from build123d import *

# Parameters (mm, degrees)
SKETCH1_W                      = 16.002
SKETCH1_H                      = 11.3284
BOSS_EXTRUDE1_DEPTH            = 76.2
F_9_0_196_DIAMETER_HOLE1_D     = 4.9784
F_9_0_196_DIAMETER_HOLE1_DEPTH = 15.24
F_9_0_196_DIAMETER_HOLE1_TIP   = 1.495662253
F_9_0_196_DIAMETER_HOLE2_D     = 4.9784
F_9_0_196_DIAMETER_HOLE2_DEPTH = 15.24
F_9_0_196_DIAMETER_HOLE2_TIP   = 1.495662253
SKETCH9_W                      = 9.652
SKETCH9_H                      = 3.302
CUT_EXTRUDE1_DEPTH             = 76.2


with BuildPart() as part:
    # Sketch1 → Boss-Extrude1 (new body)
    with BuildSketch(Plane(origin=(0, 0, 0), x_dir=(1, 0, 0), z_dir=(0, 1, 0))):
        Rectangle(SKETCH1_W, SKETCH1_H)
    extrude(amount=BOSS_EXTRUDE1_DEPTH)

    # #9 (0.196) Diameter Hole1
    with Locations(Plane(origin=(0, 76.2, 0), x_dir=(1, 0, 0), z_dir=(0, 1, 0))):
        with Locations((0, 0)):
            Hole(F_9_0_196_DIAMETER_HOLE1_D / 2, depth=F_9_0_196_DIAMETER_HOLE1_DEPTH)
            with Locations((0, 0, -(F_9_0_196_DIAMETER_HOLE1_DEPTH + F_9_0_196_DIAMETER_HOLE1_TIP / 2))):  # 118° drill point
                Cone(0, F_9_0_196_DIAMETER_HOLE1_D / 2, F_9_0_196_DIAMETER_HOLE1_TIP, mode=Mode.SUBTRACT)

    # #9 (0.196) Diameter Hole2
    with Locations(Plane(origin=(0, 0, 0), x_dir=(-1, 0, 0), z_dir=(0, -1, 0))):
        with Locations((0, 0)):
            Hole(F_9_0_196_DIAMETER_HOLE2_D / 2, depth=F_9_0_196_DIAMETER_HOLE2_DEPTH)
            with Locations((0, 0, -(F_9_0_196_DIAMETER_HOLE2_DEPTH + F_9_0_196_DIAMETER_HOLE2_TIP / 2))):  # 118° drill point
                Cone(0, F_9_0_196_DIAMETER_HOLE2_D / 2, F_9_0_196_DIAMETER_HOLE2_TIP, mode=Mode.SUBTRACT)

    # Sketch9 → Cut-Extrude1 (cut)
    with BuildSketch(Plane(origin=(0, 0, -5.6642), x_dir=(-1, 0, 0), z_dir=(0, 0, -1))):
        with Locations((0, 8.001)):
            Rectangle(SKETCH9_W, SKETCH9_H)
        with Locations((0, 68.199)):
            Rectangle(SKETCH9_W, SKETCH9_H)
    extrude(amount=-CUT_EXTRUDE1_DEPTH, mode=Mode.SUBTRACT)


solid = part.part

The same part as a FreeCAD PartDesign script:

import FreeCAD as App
import Part
import Sketcher

V = App.Vector
Q = App.Units.Quantity

doc = App.newDocument("Part")
body = doc.addObject("PartDesign::Body", "Body")

sketch1 = body.newObject("Sketcher::SketchObject", "Sketch")
sketch1.AttachmentSupport = (doc.getObject("XZ_Plane"), [""])
sketch1.MapMode = "FlatFace"
sketch1.addGeometry([
    Part.LineSegment(V(-8.001, -5.6642, 0), V(-8.001, 5.6642, 0)),
    Part.LineSegment(V(-8.001, 5.6642, 0), V(8.001, 5.6642, 0)),
    Part.LineSegment(V(8.001, 5.6642, 0), V(8.001, -5.6642, 0)),
    Part.LineSegment(V(8.001, -5.6642, 0), V(-8.001, -5.6642, 0)),
], False)
sketch1.addConstraint([
    Sketcher.Constraint("Coincident", 0, 2, 1, 1),
    Sketcher.Constraint("Coincident", 1, 2, 2, 1),
    Sketcher.Constraint("Coincident", 2, 2, 3, 1),
    Sketcher.Constraint("Coincident", 3, 2, 0, 1),
    Sketcher.Constraint("Vertical", 0),
    Sketcher.Constraint("Horizontal", 1),
    Sketcher.Constraint("Vertical", 2),
    Sketcher.Constraint("Horizontal", 3),
    Sketcher.Constraint("Symmetric", 0, 2, 2, 2, -1, 1),
    Sketcher.Constraint("DistanceX", 1, 1, 1, 2, Q("0.63 in")),
    Sketcher.Constraint("DistanceY", 0, 1, 0, 2, Q("0.446 in")),
])
pad1 = body.newObject("PartDesign::Pad", "Pad")
pad1.Profile = sketch1
pad1.Length = Q("3 in")
pad1.Reversed = True

sketch2 = body.newObject("Sketcher::SketchObject", "Sketch001")
sketch2.AttachmentSupport = (doc.getObject("XZ_Plane"), [""])
sketch2.MapMode = "FlatFace"
sketch2.AttachmentOffset = App.Placement(V(0, 0, -3 * 25.4), App.Rotation())
sketch2.addGeometry(Part.Circle(V(0, 0, 0), V(0, 0, 1), 2.4892), False)
sketch2.addConstraint([
    Sketcher.Constraint("Coincident", 0, 3, -1, 1),
    Sketcher.Constraint("Diameter", 0, Q("0.196 in")),
])
doc.recompute()
hole = body.newObject("PartDesign::Hole", "Hole")
hole.Profile = sketch2
hole.ThreadType = "None"
hole.Diameter = Q("0.196 in")
hole.DepthType = "Dimension"
hole.Depth = Q("0.6 in")
hole.DrillPoint = "Angled"
hole.DrillPointAngle = 118
hole.Reversed = True

sketch3 = body.newObject("Sketcher::SketchObject", "Sketch002")
sketch3.AttachmentSupport = (doc.getObject("XZ_Plane"), [""])
sketch3.MapMode = "FlatFace"
sketch3.addGeometry(Part.Circle(V(0, 0, 0), V(0, 0, 1), 2.4892), False)
sketch3.addConstraint([
    Sketcher.Constraint("Coincident", 0, 3, -1, 1),
    Sketcher.Constraint("Diameter", 0, Q("0.196 in")),
])
doc.recompute()
hole2 = body.newObject("PartDesign::Hole", "Hole001")
hole2.Profile = sketch3
hole2.ThreadType = "None"
hole2.Diameter = Q("0.196 in")
hole2.DepthType = "Dimension"
hole2.Depth = Q("0.6 in")
hole2.DrillPoint = "Angled"
hole2.DrillPointAngle = 118

sketch4 = body.newObject("Sketcher::SketchObject", "Sketch003")
sketch4.AttachmentSupport = (doc.getObject("XY_Plane"), [""])
sketch4.MapMode = "FlatFace"
sketch4.AttachmentOffset = App.Placement(V(0, 0, -0.223 * 25.4), App.Rotation())
sketch4.addGeometry([
    Part.LineSegment(V(4.826, 9.652, 0), V(4.826, 6.35, 0)),
    Part.LineSegment(V(4.826, 6.35, 0), V(-4.826, 6.35, 0)),
    Part.LineSegment(V(-4.826, 6.35, 0), V(-4.826, 9.652, 0)),
    Part.LineSegment(V(-4.826, 9.652, 0), V(4.826, 9.652, 0)),
    Part.LineSegment(V(4.826, 69.85, 0), V(4.826, 66.548, 0)),
    Part.LineSegment(V(4.826, 66.548, 0), V(-4.826, 66.548, 0)),
    Part.LineSegment(V(-4.826, 66.548, 0), V(-4.826, 69.85, 0)),
    Part.LineSegment(V(-4.826, 69.85, 0), V(4.826, 69.85, 0)),
], False)
sketch4.addConstraint([
    Sketcher.Constraint("Coincident", 0, 2, 1, 1),
    Sketcher.Constraint("Coincident", 1, 2, 2, 1),
    Sketcher.Constraint("Coincident", 2, 2, 3, 1),
    Sketcher.Constraint("Coincident", 3, 2, 0, 1),
    Sketcher.Constraint("Coincident", 4, 2, 5, 1),
    Sketcher.Constraint("Coincident", 5, 2, 6, 1),
    Sketcher.Constraint("Coincident", 6, 2, 7, 1),
    Sketcher.Constraint("Coincident", 7, 2, 4, 1),
    Sketcher.Constraint("Vertical", 0),
    Sketcher.Constraint("Horizontal", 1),
    Sketcher.Constraint("Vertical", 2),
    Sketcher.Constraint("Horizontal", 3),
    Sketcher.Constraint("Vertical", 4),
    Sketcher.Constraint("Horizontal", 5),
    Sketcher.Constraint("Vertical", 6),
    Sketcher.Constraint("Horizontal", 7),
    Sketcher.Constraint("Vertical", 3, 2, 4, 2),
    Sketcher.Constraint("Vertical", 2, 2, 5, 2),
    Sketcher.Constraint("Equal", 2, 4),
    Sketcher.Constraint("DistanceX", 1, 2, 1, 1, Q("0.38 in")),
    Sketcher.Constraint("DistanceY", 0, 2, 0, 1, Q("0.13 in")),
    Sketcher.Constraint("DistanceY", 1, 2, 6, 2, Q("2.5 in")),
    Sketcher.Constraint("DistanceX", -1, 1, 0, 2, Q("0.19 in")),
    Sketcher.Constraint("DistanceY", -1, 1, 0, 2, Q("0.25 in")),
])
pocket1 = body.newObject("PartDesign::Pocket", "Pocket")
pocket1.Profile = sketch4
pocket1.Length = Q("3 in")
pocket1.Reversed = True

doc.recompute()
